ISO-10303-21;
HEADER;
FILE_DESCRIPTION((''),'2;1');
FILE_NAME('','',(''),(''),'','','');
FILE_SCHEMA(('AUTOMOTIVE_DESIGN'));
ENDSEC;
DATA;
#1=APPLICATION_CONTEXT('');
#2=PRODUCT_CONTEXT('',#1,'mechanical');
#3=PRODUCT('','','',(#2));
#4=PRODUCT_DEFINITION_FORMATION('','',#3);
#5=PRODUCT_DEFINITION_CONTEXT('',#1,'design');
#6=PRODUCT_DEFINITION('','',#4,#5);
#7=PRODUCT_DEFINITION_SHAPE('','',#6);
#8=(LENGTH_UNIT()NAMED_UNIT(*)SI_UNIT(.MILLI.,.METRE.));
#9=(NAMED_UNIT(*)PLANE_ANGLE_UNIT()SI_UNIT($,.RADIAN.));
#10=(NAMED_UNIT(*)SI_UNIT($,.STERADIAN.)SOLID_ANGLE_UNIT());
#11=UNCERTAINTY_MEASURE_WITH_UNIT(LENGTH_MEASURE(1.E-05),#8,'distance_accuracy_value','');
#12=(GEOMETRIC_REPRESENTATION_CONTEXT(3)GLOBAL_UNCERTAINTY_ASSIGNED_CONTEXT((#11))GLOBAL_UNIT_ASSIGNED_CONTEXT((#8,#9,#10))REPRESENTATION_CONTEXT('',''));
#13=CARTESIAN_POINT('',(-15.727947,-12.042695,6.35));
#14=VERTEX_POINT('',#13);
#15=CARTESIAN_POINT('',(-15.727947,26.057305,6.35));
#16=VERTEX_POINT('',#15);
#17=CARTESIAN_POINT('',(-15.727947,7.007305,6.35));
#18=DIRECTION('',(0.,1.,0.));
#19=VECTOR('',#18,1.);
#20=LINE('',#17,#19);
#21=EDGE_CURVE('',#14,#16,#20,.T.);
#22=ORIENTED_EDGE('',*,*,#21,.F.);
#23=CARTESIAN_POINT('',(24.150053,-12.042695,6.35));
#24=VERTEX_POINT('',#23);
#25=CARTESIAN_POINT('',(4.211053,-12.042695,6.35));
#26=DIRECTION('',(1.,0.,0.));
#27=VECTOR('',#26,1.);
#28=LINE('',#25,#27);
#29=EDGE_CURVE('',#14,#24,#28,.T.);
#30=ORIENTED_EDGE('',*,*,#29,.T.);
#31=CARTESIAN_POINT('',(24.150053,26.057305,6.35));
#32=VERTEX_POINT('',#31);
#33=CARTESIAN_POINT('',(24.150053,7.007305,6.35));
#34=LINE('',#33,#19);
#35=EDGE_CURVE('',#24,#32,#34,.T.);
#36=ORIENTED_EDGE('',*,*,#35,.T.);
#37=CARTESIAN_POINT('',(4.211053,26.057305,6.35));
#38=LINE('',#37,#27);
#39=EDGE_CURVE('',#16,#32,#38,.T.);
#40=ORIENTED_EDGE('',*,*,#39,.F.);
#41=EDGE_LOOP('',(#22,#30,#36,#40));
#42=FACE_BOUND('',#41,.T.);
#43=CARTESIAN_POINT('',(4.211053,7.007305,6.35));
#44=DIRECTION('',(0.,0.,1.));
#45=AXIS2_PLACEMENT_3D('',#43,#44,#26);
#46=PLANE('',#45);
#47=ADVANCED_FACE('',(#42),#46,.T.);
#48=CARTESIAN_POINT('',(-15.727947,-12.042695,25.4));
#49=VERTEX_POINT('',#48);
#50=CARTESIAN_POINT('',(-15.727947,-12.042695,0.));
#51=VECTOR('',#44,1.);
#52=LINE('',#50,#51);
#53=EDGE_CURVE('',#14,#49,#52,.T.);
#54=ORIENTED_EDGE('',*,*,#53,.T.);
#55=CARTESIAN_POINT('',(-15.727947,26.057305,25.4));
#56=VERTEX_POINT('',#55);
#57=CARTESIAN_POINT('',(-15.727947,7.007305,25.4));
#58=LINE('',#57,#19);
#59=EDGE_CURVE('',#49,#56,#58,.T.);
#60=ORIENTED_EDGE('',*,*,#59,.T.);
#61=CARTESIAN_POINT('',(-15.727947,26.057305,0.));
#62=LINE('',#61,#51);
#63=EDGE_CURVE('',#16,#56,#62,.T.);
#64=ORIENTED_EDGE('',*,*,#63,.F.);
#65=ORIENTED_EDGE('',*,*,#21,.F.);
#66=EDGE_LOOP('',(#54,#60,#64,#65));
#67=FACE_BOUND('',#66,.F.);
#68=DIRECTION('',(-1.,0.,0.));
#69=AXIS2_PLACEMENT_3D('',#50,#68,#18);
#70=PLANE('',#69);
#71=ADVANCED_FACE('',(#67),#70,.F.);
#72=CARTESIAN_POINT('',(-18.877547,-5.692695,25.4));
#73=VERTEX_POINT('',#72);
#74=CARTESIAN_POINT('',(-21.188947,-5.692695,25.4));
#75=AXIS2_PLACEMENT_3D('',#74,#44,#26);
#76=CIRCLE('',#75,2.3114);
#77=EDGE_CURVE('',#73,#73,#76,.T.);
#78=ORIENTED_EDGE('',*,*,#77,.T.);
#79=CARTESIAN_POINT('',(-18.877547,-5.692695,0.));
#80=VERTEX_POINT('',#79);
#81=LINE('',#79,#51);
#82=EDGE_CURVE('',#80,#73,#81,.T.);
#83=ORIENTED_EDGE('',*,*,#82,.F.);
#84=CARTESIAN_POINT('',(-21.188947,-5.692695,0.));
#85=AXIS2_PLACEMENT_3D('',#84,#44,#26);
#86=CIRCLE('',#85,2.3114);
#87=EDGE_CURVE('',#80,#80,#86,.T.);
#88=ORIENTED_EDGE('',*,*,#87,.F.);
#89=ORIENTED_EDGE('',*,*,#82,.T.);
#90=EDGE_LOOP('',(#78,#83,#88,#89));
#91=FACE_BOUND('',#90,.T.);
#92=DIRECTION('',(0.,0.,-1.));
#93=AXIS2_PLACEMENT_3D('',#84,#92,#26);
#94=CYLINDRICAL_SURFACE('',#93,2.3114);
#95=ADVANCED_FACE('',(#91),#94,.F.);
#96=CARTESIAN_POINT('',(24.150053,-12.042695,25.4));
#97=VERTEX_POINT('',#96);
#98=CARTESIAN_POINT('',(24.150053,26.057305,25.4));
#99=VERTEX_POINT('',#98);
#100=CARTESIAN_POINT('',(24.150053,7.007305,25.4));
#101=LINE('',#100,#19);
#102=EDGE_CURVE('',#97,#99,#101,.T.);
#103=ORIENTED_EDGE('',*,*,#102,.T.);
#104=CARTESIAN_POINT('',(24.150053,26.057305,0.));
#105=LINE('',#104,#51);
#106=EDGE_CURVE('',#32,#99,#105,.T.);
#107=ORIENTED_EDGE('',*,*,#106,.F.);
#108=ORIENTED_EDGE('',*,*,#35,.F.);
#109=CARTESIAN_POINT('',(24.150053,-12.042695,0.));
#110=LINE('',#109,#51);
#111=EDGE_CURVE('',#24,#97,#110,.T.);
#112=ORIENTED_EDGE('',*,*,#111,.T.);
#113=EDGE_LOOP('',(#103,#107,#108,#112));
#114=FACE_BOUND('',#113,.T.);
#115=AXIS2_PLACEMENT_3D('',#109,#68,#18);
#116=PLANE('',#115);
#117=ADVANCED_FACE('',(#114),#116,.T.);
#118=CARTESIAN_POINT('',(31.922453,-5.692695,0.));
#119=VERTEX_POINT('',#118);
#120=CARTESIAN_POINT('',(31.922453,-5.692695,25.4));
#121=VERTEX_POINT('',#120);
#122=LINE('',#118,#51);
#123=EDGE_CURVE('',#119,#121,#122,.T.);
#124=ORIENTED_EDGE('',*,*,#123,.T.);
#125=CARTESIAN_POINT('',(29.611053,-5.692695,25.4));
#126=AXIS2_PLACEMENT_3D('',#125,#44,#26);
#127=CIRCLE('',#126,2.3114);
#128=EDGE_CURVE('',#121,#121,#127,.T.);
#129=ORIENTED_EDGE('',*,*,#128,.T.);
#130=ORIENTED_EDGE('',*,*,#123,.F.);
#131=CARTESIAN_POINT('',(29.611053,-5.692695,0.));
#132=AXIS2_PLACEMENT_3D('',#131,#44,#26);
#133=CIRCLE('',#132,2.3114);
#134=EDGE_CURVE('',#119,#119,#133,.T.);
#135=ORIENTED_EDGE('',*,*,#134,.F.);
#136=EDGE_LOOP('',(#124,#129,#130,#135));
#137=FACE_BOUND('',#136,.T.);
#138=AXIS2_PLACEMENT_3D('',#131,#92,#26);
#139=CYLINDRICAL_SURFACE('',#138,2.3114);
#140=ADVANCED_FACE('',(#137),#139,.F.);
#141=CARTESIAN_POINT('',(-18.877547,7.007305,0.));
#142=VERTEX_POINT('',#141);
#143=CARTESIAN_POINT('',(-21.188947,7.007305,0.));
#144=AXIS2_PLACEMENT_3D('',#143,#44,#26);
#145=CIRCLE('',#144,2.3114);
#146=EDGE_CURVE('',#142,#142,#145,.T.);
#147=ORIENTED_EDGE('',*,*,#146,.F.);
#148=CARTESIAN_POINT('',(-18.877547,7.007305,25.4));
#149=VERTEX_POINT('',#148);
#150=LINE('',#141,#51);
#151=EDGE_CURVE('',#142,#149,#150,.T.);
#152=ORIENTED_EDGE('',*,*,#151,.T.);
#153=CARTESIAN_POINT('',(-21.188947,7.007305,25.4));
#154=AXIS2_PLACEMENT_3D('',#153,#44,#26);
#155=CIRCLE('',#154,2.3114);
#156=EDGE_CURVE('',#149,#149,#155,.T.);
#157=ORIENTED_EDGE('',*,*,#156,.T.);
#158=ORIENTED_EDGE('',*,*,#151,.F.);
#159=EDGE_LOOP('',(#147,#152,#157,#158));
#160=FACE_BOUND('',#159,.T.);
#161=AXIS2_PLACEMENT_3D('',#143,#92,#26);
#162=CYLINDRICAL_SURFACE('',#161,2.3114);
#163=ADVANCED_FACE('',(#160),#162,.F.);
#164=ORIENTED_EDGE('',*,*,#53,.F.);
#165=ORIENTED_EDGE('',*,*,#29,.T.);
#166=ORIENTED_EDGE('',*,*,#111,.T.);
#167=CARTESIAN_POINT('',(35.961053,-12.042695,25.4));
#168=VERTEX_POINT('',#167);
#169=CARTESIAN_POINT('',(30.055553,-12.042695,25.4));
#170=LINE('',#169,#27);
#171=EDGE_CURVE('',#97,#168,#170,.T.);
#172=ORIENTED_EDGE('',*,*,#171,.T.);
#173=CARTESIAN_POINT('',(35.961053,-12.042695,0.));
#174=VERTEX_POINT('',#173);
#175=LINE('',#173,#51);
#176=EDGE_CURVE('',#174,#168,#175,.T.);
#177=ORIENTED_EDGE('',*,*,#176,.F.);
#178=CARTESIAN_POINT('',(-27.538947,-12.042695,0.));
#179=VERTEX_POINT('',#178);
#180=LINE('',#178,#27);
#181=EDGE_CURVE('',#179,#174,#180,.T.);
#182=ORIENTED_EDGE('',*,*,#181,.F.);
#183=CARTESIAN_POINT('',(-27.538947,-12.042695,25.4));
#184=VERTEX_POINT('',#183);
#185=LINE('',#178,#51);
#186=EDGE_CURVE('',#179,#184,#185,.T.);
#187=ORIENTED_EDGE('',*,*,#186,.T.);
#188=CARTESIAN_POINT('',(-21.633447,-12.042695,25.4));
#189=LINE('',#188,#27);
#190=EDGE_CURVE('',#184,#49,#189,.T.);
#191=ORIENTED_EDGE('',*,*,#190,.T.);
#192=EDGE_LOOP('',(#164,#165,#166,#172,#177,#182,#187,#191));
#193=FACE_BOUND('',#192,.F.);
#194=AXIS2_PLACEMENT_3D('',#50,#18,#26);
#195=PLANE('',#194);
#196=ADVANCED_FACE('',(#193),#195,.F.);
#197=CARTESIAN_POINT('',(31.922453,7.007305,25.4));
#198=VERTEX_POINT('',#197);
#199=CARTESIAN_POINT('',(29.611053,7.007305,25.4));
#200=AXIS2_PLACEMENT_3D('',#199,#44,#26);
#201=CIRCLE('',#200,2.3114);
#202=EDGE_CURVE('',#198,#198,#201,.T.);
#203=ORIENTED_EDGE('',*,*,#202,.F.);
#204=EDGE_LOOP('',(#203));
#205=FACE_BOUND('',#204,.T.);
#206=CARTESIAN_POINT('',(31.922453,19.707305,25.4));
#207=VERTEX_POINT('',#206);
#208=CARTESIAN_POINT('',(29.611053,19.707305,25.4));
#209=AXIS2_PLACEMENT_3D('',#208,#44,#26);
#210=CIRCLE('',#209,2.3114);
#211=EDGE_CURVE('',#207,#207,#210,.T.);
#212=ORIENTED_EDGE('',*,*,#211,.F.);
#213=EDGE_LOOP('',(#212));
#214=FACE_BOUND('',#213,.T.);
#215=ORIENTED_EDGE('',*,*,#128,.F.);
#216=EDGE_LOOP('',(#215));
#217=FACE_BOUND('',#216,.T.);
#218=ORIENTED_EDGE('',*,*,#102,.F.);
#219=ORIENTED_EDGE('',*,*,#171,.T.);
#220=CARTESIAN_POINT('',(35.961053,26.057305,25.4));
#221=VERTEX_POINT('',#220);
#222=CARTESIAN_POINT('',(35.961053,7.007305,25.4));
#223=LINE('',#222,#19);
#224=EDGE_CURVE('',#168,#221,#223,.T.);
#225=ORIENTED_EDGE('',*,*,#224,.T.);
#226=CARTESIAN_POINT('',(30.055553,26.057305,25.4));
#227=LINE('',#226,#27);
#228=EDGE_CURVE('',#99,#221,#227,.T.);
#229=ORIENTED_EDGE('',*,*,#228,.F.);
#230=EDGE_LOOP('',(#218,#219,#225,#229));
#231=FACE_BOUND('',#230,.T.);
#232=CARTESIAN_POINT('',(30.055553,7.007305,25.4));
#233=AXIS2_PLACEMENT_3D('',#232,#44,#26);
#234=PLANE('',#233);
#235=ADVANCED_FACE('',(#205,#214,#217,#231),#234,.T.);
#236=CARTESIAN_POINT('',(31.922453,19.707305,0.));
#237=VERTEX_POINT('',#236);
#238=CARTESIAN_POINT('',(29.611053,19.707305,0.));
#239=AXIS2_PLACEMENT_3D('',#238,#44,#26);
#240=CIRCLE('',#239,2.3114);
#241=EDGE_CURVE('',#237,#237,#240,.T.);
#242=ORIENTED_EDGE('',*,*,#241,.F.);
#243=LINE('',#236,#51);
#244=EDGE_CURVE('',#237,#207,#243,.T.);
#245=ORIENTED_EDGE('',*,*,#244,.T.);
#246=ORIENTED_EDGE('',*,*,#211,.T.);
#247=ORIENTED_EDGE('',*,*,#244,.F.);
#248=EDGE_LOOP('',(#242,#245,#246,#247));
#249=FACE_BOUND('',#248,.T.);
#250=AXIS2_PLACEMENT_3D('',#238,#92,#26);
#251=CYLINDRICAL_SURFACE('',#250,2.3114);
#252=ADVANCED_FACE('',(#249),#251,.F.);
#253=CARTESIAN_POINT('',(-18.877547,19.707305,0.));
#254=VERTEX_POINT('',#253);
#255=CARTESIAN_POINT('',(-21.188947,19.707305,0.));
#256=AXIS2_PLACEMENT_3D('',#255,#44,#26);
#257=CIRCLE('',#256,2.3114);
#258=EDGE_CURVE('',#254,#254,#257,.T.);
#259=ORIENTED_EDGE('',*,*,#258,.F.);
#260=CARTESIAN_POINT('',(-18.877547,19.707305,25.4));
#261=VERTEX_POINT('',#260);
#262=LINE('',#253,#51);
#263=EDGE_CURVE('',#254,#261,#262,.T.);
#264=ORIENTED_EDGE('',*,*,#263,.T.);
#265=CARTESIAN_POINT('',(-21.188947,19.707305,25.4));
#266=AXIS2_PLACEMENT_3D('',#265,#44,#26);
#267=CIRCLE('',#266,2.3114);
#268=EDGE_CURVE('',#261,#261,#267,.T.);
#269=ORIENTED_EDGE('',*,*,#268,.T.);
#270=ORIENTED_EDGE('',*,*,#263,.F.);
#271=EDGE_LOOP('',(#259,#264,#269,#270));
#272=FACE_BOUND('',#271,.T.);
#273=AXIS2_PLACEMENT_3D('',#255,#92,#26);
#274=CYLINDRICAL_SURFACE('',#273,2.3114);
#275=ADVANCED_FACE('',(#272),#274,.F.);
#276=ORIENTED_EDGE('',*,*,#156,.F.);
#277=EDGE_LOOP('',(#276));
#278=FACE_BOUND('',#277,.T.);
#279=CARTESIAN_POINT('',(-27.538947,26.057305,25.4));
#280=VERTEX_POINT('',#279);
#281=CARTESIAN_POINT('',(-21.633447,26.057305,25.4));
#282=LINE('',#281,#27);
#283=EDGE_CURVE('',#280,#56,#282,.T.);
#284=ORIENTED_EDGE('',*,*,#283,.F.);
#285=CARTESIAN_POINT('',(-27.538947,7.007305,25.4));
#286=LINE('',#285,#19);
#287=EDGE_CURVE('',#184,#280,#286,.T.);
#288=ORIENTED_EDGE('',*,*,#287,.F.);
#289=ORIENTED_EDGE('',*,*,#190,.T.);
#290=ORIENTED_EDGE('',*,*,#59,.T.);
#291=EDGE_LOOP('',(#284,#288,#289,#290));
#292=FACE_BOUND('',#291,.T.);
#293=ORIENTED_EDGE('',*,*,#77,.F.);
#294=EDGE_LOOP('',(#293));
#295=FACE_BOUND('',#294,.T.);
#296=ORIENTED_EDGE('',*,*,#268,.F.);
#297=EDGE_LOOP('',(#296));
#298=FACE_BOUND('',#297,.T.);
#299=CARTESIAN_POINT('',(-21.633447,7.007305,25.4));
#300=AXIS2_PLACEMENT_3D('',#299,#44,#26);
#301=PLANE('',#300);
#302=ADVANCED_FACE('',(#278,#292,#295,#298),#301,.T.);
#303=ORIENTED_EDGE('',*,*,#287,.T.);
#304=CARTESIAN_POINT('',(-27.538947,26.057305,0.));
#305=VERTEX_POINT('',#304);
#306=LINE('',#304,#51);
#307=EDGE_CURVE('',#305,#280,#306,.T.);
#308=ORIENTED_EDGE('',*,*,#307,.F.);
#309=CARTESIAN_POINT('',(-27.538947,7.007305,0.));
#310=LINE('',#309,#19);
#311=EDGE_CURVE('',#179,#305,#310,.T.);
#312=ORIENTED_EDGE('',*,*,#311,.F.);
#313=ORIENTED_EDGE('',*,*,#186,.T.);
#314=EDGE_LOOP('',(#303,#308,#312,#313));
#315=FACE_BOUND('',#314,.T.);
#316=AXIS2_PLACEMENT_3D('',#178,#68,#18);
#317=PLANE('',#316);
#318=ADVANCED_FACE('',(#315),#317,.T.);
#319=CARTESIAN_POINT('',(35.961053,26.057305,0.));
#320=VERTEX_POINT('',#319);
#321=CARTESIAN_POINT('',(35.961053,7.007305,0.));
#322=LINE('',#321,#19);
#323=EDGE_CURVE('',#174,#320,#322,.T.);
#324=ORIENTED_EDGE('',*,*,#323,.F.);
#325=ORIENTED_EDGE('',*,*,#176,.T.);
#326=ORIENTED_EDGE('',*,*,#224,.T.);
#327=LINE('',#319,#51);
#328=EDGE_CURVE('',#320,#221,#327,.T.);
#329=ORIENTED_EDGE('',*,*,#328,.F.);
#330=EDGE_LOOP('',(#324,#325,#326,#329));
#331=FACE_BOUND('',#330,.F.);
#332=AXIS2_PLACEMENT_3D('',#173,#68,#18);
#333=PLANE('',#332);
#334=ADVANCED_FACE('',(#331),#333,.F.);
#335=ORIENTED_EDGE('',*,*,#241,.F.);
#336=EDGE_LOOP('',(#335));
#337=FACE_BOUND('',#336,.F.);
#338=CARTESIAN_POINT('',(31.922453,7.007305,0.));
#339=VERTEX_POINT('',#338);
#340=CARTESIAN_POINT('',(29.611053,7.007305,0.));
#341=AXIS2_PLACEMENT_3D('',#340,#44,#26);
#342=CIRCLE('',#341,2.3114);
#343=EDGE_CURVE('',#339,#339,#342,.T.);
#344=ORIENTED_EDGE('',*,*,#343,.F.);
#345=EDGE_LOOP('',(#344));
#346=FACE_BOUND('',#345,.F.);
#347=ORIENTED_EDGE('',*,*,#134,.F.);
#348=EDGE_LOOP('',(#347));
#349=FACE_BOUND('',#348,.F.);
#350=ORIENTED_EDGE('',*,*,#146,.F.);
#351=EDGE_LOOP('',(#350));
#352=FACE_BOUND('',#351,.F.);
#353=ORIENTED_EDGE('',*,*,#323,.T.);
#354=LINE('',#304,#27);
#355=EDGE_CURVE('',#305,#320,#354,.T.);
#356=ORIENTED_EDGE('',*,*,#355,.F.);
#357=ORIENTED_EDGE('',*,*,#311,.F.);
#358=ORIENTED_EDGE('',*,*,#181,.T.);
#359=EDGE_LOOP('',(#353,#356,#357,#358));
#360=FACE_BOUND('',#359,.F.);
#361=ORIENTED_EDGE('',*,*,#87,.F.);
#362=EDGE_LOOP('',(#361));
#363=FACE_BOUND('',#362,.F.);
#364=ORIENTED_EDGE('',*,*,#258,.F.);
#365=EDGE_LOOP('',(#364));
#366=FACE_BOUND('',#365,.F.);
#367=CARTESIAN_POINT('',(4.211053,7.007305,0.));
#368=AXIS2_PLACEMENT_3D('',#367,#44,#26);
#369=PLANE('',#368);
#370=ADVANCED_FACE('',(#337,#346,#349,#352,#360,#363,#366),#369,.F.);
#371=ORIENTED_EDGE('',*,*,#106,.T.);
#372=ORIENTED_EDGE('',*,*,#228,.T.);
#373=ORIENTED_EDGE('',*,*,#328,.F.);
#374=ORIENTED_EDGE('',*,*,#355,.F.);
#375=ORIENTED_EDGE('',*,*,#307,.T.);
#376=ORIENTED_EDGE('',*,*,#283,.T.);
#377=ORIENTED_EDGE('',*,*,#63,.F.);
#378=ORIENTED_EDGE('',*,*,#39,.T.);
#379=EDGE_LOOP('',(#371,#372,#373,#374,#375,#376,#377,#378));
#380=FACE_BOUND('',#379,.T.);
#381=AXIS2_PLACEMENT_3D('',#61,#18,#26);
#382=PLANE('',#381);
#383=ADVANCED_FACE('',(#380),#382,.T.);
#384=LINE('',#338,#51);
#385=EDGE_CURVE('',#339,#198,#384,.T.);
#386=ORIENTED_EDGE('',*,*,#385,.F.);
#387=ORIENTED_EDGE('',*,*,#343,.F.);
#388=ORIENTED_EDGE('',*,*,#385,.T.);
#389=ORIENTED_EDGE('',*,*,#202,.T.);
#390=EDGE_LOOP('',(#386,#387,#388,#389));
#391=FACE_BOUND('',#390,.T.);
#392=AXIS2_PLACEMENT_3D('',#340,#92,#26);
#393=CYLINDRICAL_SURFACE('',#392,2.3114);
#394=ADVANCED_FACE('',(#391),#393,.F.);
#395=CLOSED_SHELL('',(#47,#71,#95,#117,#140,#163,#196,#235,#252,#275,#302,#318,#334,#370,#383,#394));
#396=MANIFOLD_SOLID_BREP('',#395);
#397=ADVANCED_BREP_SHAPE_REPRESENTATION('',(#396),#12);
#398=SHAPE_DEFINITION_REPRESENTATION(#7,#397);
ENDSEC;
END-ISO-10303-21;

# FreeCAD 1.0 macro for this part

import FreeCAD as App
import Part
import Sketcher
from FreeCAD import Vector
Q = App.Units.Quantity

doc = App.newDocument("Part")
body = doc.addObject("PartDesign::Body", "Body")
body.AllowCompound = True

# Sketch on XY plane
sketch1 = body.newObject("Sketcher::SketchObject", "Sketch")
sketch1.AttachmentSupport = (doc.getObject("XY_Plane"), [""])
sketch1.MapMode = "FlatFace"
sketch1.addGeometry(Part.LineSegment(Vector(-27.5, 26.1, 0), Vector(-27.5, -12, 0)), False)
sketch1.addGeometry(Part.LineSegment(Vector(-27.5, -12, 0), Vector(-15.7, -12, 0)), False)
sketch1.addGeometry(Part.LineSegment(Vector(-15.7, -12, 0), Vector(-15.7, 26.1, 0)), False)
sketch1.addGeometry(Part.LineSegment(Vector(-15.7, 26.1, 0), Vector(-27.5, 26.1, 0)), False)
sketch1.addGeometry(Part.Circle(Vector(-21.2, -5.7, 0), Vector(0, 0, 1), 2.3), False)
sketch1.addGeometry(Part.Circle(Vector(-21.2, 7, 0), Vector(0, 0, 1), 2.3), False)
sketch1.addGeometry(Part.Circle(Vector(-21.2, 19.7, 0), Vector(0, 0, 1), 2.3), False)
sketch1.addGeometry(Part.LineSegment(Vector(24.2, 26.1, 0), Vector(24.2, -12, 0)), False)
sketch1.addGeometry(Part.LineSegment(Vector(24.2, -12, 0), Vector(36, -12, 0)), False)
sketch1.addGeometry(Part.LineSegment(Vector(36, -12, 0), Vector(36, 26.1, 0)), False)
sketch1.addGeometry(Part.LineSegment(Vector(36, 26.1, 0), Vector(24.2, 26.1, 0)), False)
sketch1.addGeometry(Part.Circle(Vector(29.6, -5.7, 0), Vector(0, 0, 1), 2.3), False)
sketch1.addGeometry(Part.Circle(Vector(29.6, 7, 0), Vector(0, 0, 1), 2.3), False)
sketch1.addGeometry(Part.Circle(Vector(29.6, 19.7, 0), Vector(0, 0, 1), 2.3), False)
sketch1.addConstraint(Sketcher.Constraint("Coincident", 0, 2, 1, 1))
sketch1.addConstraint(Sketcher.Constraint("Coincident", 1, 2, 2, 1))
sketch1.addConstraint(Sketcher.Constraint("Coincident", 2, 2, 3, 1))
sketch1.addConstraint(Sketcher.Constraint("Coincident", 3, 2, 0, 1))
sketch1.addConstraint(Sketcher.Constraint("Coincident", 7, 2, 8, 1))
sketch1.addConstraint(Sketcher.Constraint("Coincident", 8, 2, 9, 1))
sketch1.addConstraint(Sketcher.Constraint("Coincident", 9, 2, 10, 1))
sketch1.addConstraint(Sketcher.Constraint("Coincident", 10, 2, 7, 1))
sketch1.addConstraint(Sketcher.Constraint("Vertical", 0))
sketch1.addConstraint(Sketcher.Constraint("Horizontal", 1))
sketch1.addConstraint(Sketcher.Constraint("Vertical", 2))
sketch1.addConstraint(Sketcher.Constraint("Horizontal", 3))
sketch1.addConstraint(Sketcher.Constraint("Vertical", 7))
sketch1.addConstraint(Sketcher.Constraint("Horizontal", 8))
sketch1.addConstraint(Sketcher.Constraint("Vertical", 9))
sketch1.addConstraint(Sketcher.Constraint("Horizontal", 10))
sketch1.addConstraint(Sketcher.Constraint("Equal", 4, 5))
sketch1.addConstraint(Sketcher.Constraint("Equal", 5, 6))
sketch1.addConstraint(Sketcher.Constraint("Equal", 6, 11))
sketch1.addConstraint(Sketcher.Constraint("Equal", 11, 12))
sketch1.addConstraint(Sketcher.Constraint("Equal", 12, 13))
sketch1.addConstraint(Sketcher.Constraint("Horizontal", 4, 3, 11, 3))
sketch1.addConstraint(Sketcher.Constraint("Horizontal", 5, 3, 12, 3))
sketch1.addConstraint(Sketcher.Constraint("Horizontal", 6, 3, 13, 3))
sketch1.addConstraint(Sketcher.Constraint("Horizontal", 1, 2, 7, 2))
sketch1.addConstraint(Sketcher.Constraint("Horizontal", 3, 2, 9, 2))
sketch1.addConstraint(Sketcher.Constraint("Vertical", 4, 3, 5, 3))
sketch1.addConstraint(Sketcher.Constraint("Vertical", 5, 3, 6, 3))
sketch1.addConstraint(Sketcher.Constraint("Vertical", 11, 3, 12, 3))
sketch1.addConstraint(Sketcher.Constraint("Vertical", 12, 3, 13, 3))
sketch1.addConstraint(Sketcher.Constraint("Equal", 3, 8))
sketch1.addConstraint(Sketcher.Constraint("Diameter", 4, Q("0.182 in")))
sketch1.addConstraint(Sketcher.Constraint("DistanceY", 0, 2, 0, 1, Q("1.5 in")))
sketch1.addConstraint(Sketcher.Constraint("DistanceY", 4, 3, 6, 3, Q("1 in")))
sketch1.addConstraint(Sketcher.Constraint("DistanceX", 4, 3, 11, 3, Q("2 in")))
sketch1.addConstraint(Sketcher.Constraint("DistanceY", 4, 3, 5, 3, Q("0.5 in")))
sketch1.addConstraint(Sketcher.Constraint("DistanceX", 1, 1, 1, 2, Q("0.465 in")))
sketch1.addConstraint(Sketcher.Constraint("DistanceX", 0, 2, 4, 3, Q("0.25 in")))
sketch1.addConstraint(Sketcher.Constraint("DistanceY", 0, 2, 4, 3, Q("0.25 in")))
sketch1.addConstraint(Sketcher.Constraint("DistanceX", 1, 2, 7, 2, Q("1.57 in")))
sketch1.addConstraint(Sketcher.Constraint("DistanceX", 4, 3, -1, 1, Q("21.188947 mm")))
sketch1.addConstraint(Sketcher.Constraint("DistanceY", 4, 3, -1, 1, Q("5.692695 mm")))
pad1 = body.newObject("PartDesign::Pad", "Pad")
pad1.Profile = sketch1
pad1.Length = Q("1 in")

# Sketch on XY plane
sketch2 = body.newObject("Sketcher::SketchObject", "Sketch001")
sketch2.AttachmentSupport = (doc.getObject("XY_Plane"), [""])
sketch2.MapMode = "FlatFace"
sketch2.addGeometry(Part.LineSegment(Vector(-16, 26, 0), Vector(-16, -12, 0)), False)
sketch2.addGeometry(Part.LineSegment(Vector(-16, -12, 0), Vector(24, -12, 0)), False)
sketch2.addGeometry(Part.LineSegment(Vector(24, -12, 0), Vector(24, 26, 0)), False)
sketch2.addGeometry(Part.LineSegment(Vector(24, 26, 0), Vector(-16, 26, 0)), False)
sketch2.addConstraint(Sketcher.Constraint("Coincident", 0, 2, 1, 1))
sketch2.addConstraint(Sketcher.Constraint("Coincident", 1, 2, 2, 1))
sketch2.addConstraint(Sketcher.Constraint("Coincident", 2, 2, 3, 1))
sketch2.addConstraint(Sketcher.Constraint("Coincident", 3, 2, 0, 1))
sketch2.addConstraint(Sketcher.Constraint("Vertical", 0))
sketch2.addConstraint(Sketcher.Constraint("Horizontal", 1))
sketch2.addConstraint(Sketcher.Constraint("Vertical", 2))
sketch2.addConstraint(Sketcher.Constraint("Horizontal", 3))
sketch2.addConstraint(Sketcher.Constraint("DistanceY", 0, 2, 0, 1, Q("1.5 in")))
sketch2.addConstraint(Sketcher.Constraint("DistanceX", 1, 1, 1, 2, Q("1.57 in")))
sketch2.addConstraint(Sketcher.Constraint("DistanceX", 0, 2, -1, 1, Q("15.727947 mm")))
sketch2.addConstraint(Sketcher.Constraint("DistanceY", 0, 2, -1, 1, Q("12.042695 mm")))
pad2 = body.newObject("PartDesign::Pad", "Pad001")
pad2.Profile = sketch2
pad2.Length = Q("0.25 in")

doc.recompute()
